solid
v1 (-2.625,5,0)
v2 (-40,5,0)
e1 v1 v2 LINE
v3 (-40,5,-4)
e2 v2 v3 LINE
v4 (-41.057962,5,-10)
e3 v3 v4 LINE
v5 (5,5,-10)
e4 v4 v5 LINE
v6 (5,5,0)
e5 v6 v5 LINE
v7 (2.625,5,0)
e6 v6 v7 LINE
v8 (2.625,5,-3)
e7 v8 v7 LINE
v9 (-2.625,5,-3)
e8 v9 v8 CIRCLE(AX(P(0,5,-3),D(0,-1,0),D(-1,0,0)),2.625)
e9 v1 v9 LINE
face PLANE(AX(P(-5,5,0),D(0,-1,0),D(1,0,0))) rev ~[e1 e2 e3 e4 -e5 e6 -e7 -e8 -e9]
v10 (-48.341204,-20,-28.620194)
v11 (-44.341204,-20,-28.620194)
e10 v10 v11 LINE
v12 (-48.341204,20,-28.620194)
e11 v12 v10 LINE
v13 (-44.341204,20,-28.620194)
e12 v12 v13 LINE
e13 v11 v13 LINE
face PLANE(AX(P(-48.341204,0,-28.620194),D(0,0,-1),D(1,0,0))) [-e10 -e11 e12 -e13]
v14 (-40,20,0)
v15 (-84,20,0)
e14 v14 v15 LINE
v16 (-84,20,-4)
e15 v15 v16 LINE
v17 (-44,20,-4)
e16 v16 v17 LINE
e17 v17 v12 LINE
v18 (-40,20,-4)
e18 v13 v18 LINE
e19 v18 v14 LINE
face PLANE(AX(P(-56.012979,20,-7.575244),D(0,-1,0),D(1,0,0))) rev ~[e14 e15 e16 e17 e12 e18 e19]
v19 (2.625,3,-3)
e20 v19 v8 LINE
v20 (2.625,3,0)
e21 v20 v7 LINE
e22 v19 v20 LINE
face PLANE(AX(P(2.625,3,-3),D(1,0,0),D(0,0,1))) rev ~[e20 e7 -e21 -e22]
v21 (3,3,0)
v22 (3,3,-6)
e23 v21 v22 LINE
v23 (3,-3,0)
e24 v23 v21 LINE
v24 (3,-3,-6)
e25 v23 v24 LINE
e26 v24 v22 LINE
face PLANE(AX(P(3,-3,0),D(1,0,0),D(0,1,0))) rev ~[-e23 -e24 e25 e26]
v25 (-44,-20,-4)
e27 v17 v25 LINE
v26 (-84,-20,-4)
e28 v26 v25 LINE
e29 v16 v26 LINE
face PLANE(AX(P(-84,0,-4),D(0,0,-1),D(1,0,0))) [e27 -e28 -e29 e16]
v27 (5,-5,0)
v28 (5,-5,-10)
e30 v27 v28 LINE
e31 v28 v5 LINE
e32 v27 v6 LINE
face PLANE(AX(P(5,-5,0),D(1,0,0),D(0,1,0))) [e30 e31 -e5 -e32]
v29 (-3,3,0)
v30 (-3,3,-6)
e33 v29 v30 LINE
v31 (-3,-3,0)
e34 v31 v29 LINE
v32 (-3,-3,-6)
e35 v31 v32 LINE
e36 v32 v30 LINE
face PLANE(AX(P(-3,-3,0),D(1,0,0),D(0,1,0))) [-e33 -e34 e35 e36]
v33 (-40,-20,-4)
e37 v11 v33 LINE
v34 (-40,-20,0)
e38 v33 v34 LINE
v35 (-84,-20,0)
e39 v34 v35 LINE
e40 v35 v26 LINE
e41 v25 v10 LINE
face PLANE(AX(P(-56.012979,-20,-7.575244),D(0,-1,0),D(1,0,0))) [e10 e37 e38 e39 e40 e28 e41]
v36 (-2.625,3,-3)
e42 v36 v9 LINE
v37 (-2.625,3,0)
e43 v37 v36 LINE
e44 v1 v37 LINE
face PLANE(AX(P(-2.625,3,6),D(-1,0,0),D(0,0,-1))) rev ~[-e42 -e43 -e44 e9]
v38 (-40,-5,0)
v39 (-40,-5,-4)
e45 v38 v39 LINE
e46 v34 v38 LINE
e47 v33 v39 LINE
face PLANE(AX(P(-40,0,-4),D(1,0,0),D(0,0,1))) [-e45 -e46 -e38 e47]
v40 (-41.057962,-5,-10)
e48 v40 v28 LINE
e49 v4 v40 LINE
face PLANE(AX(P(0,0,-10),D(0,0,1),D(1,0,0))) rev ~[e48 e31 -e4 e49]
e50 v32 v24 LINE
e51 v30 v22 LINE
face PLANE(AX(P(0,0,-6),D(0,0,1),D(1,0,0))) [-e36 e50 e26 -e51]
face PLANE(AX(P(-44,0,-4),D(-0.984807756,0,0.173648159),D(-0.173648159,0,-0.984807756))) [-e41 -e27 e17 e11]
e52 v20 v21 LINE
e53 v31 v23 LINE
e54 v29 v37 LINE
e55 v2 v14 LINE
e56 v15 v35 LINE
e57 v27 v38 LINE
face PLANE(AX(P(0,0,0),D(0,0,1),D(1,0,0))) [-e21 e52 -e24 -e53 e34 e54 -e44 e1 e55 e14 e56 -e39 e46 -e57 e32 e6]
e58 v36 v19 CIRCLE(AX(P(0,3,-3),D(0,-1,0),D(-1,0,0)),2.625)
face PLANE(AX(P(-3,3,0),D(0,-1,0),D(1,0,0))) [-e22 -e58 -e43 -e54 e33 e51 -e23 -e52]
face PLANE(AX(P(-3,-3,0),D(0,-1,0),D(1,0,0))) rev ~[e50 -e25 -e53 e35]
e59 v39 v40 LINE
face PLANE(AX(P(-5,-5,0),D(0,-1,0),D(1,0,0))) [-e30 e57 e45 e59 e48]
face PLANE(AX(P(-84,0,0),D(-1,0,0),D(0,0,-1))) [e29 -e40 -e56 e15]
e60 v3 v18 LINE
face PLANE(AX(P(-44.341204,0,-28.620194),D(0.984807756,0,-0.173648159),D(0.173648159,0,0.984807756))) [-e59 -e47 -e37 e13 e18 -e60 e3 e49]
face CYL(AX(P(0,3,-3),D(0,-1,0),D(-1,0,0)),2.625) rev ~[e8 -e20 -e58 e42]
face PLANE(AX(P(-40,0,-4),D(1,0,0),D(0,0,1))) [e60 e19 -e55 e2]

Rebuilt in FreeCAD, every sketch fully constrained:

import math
import FreeCAD as App
import Part
import Sketcher
from FreeCAD import Vector
Q = App.Units.Quantity

doc = App.newDocument("Part")
params = doc.addObject("Spreadsheet::Sheet", "Params")
for row, (alias, value) in enumerate([
    ("sketch1_width", "44 mm"),
    ("sketch1_width2", "40 mm"),
    ("sketch1_length", "25 mm"),
    ("pad1_length", "40 mm"),
    ("sketch2_width", "39 mm"),
    ("sketch2_height", "10 mm"),
    ("pad2_length", "10 mm"),
    ("sketch3_width", "10 mm"),
    ("pad3_length", "10 mm"),
    ("sketch4_width", "6 mm"),
    ("pocket1_length", "6 mm"),
    ("sketch5_height", "9 mm"),
], start=1):
    params.set(f"A{row}", alias)
    params.set(f"B{row}", "=" + value)
    params.setAlias(f"B{row}", alias)

body = doc.addObject("PartDesign::Body", "Body")

# Sketch on XZ plane
sketch1 = body.newObject("Sketcher::SketchObject", "Sketch")
sketch1.AttachmentSupport = (doc.getObject("XZ_Plane"), [""])
sketch1.MapMode = "FlatFace"
sketch1.addGeometry([
    Part.LineSegment(Vector(-40, 0, 0), Vector(-84, 0, 0)),  # 0
    Part.LineSegment(Vector(-84, 0, 0), Vector(-84, -4, 0)),  # 1
    Part.LineSegment(Vector(-84, -4, 0), Vector(-44, -4, 0)),  # 2
    Part.LineSegment(Vector(-44, -4, 0), Vector(-48.3, -28.6, 0)),  # 3
    Part.LineSegment(Vector(-48.3, -28.6, 0), Vector(-44.3, -28.6, 0)),  # 4
    Part.LineSegment(Vector(-44.3, -28.6, 0), Vector(-40, -4, 0)),  # 5
    Part.LineSegment(Vector(-40, -4, 0), Vector(-40, 0, 0)),  # 6
], False)
sketch1.addConstraint([
    Sketcher.Constraint("Coincident", 0, 2, 1, 1),
    Sketcher.Constraint("Coincident", 1, 2, 2, 1),
    Sketcher.Constraint("Coincident", 2, 2, 3, 1),
    Sketcher.Constraint("Coincident", 3, 2, 4, 1),
    Sketcher.Constraint("Coincident", 4, 2, 5, 1),
    Sketcher.Constraint("Coincident", 5, 2, 6, 1),
    Sketcher.Constraint("Coincident", 6, 2, 0, 1),
    Sketcher.Constraint("Horizontal", 0),
    Sketcher.Constraint("Vertical", 1),
    Sketcher.Constraint("Horizontal", 2),
    Sketcher.Constraint("Horizontal", 4),
    Sketcher.Constraint("Vertical", 6),
    Sketcher.Constraint("PointOnObject", 0, 2, -1),
    Sketcher.Constraint("Parallel", 3, 5),
    Sketcher.Constraint("Horizontal", 2, 2, 5, 2),
    Sketcher.Constraint("Equal", 4, 1),
    Sketcher.Constraint("DistanceX", 0, 2, 0, 1, 44.0),
    Sketcher.Constraint("DistanceX", 2, 1, 2, 2, 40.0),
    Sketcher.Constraint("Angle", 3, Q("-99.999999 deg")),
    Sketcher.Constraint("Distance", 3, 25.0),
    Sketcher.Constraint("DistanceX", 0, 2, -1, 1, 84.0),
])
sketch1.setExpression("Constraints[16]", "Params.sketch1_width")
sketch1.setExpression("Constraints[17]", "Params.sketch1_width2")
sketch1.setExpression("Constraints[19]", "Params.sketch1_length")
pad1 = body.newObject("PartDesign::Pad", "Pad")
pad1.Profile = sketch1
pad1.setExpression("Length", "Params.pad1_length")
pad1.Midplane = True

# Sketch on XY plane
sketch2 = body.newObject("Sketcher::SketchObject", "Sketch001")
sketch2.AttachmentSupport = (doc.getObject("XY_Plane"), [""])
sketch2.MapMode = "FlatFace"
sketch2.addGeometry([
    Part.LineSegment(Vector(-44, 5, 0), Vector(-44, -5, 0)),
    Part.LineSegment(Vector(-44, -5, 0), Vector(-5, -5, 0)),
    Part.LineSegment(Vector(-5, -5, 0), Vector(-5, 5, 0)),
    Part.LineSegment(Vector(-5, 5, 0), Vector(-44, 5, 0)),
], False)
sketch2.addConstraint([
    Sketcher.Constraint("Coincident", 0, 2, 1, 1),
    Sketcher.Constraint("Coincident", 1, 2, 2, 1),
    Sketcher.Constraint("Coincident", 2, 2, 3, 1),
    Sketcher.Constraint("Coincident", 3, 2, 0, 1),
    Sketcher.Constraint("Vertical", 0),
    Sketcher.Constraint("Horizontal", 1),
    Sketcher.Constraint("Vertical", 2),
    Sketcher.Constraint("Horizontal", 3),
    Sketcher.Constraint("DistanceX", 1, 1, 1, 2, 39.0),
    Sketcher.Constraint("DistanceY", 0, 2, 0, 1, 10.0),
    Sketcher.Constraint("DistanceX", 0, 2, -1, 1, 44.0),
    Sketcher.Constraint("DistanceY", 0, 2, -1, 1, 5.0),
])
sketch2.setExpression("Constraints[8]", "Params.sketch2_width")
sketch2.setExpression("Constraints[9]", "Params.sketch2_height")
pad2 = body.newObject("PartDesign::Pad", "Pad001")
pad2.Profile = sketch2
pad2.setExpression("Length", "Params.pad2_length")
pad2.Reversed = True

# Sketch on XY plane
sketch3 = body.newObject("Sketcher::SketchObject", "Sketch002")
sketch3.AttachmentSupport = (doc.getObject("XY_Plane"), [""])
sketch3.MapMode = "FlatFace"
sketch3.addGeometry([
    Part.LineSegment(Vector(-5, 5, 0), Vector(-5, -5, 0)),
    Part.LineSegment(Vector(-5, -5, 0), Vector(5, -5, 0)),
    Part.LineSegment(Vector(5, -5, 0), Vector(5, 5, 0)),
    Part.LineSegment(Vector(5, 5, 0), Vector(-5, 5, 0)),
], False)
sketch3.addConstraint([
    Sketcher.Constraint("Coincident", 0, 2, 1, 1),
    Sketcher.Constraint("Coincident", 1, 2, 2, 1),
    Sketcher.Constraint("Coincident", 2, 2, 3, 1),
    Sketcher.Constraint("Coincident", 3, 2, 0, 1),
    Sketcher.Constraint("Vertical", 0),
    Sketcher.Constraint("Horizontal", 1),
    Sketcher.Constraint("Vertical", 2),
    Sketcher.Constraint("Horizontal", 3),
    Sketcher.Constraint("Symmetric", 0, 2, 2, 2, -1, 1),
    Sketcher.Constraint("Equal", 3, 0),
    Sketcher.Constraint("DistanceX", 1, 1, 1, 2, 10.0),
])
sketch3.setExpression("Constraints[10]", "Params.sketch3_width")
pad3 = body.newObject("PartDesign::Pad", "Pad002")
pad3.Profile = sketch3
pad3.setExpression("Length", "Params.pad3_length")
pad3.Reversed = True

# Sketch on XY plane
sketch4 = body.newObject("Sketcher::SketchObject", "Sketch003")
sketch4.AttachmentSupport = (doc.getObject("XY_Plane"), [""])
sketch4.MapMode = "FlatFace"
sketch4.addGeometry([
    Part.LineSegment(Vector(-3, 3, 0), Vector(-3, -3, 0)),
    Part.LineSegment(Vector(-3, -3, 0), Vector(3, -3, 0)),
    Part.LineSegment(Vector(3, -3, 0), Vector(3, 3, 0)),
    Part.LineSegment(Vector(3, 3, 0), Vector(-3, 3, 0)),
], False)
sketch4.addConstraint([
    Sketcher.Constraint("Coincident", 0, 2, 1, 1),
    Sketcher.Constraint("Coincident", 1, 2, 2, 1),
    Sketcher.Constraint("Coincident", 2, 2, 3, 1),
    Sketcher.Constraint("Coincident", 3, 2, 0, 1),
    Sketcher.Constraint("Vertical", 0),
    Sketcher.Constraint("Horizontal", 1),
    Sketcher.Constraint("Vertical", 2),
    Sketcher.Constraint("Horizontal", 3),
    Sketcher.Constraint("Symmetric", 0, 2, 2, 2, -1, 1),
    Sketcher.Constraint("Equal", 3, 0),
    Sketcher.Constraint("DistanceX", 1, 1, 1, 2, 6.0),
])
sketch4.setExpression("Constraints[10]", "Params.sketch4_width")
pocket1 = body.newObject("PartDesign::Pocket", "Pocket")
pocket1.Profile = sketch4
pocket1.setExpression("Length", "Params.pocket1_length")

# Sketch on XZ plane
sketch5 = body.newObject("Sketcher::SketchObject", "Sketch004")
sketch5.AttachmentSupport = (doc.getObject("XZ_Plane"), [""])
sketch5.MapMode = "FlatFace"
sketch5.AttachmentOffset = App.Placement(Vector(0, 0, -3), App.Rotation())
sketch5.addGeometry([
    Part.ArcOfCircle(Part.Circle(Vector(0, -3, 0), Vector(0, 0, 1), 2.6), math.radians(180), math.radians(360)),
    Part.LineSegment(Vector(2.6, -3, 0), Vector(2.6, 6, 0)),
    Part.ArcOfCircle(Part.Circle(Vector(0, 6, 0), Vector(0, 0, 1), 2.6), math.radians(0), math.radians(180)),
    Part.LineSegment(Vector(-2.6, 6, 0), Vector(-2.6, -3, 0)),
], False)
sketch5.addConstraint([
    Sketcher.Constraint("Tangent", 0, 2, 1, 1),
    Sketcher.Constraint("Tangent", 1, 2, 2, 1),
    Sketcher.Constraint("Tangent", 2, 2, 3, 1),
    Sketcher.Constraint("Tangent", 3, 2, 0, 1),
    Sketcher.Constraint("Vertical", 1),
    Sketcher.Constraint("Vertical", 3),
    Sketcher.Constraint("PointOnObject", 0, 3, -2),
    Sketcher.Constraint("DistanceY", 1, 1, 1, 2, 9.0),
    Sketcher.Constraint("DistanceY", 0, 3, -1, 1, 3.0),
    Sketcher.Constraint("Radius", 0, 2.625),
])
sketch5.setExpression("Constraints[7]", "Params.sketch5_height")
pocket2 = body.newObject("PartDesign::Pocket", "Pocket001")
pocket2.Profile = sketch5
pocket2.Type = "ThroughAll"

doc.recompute()
